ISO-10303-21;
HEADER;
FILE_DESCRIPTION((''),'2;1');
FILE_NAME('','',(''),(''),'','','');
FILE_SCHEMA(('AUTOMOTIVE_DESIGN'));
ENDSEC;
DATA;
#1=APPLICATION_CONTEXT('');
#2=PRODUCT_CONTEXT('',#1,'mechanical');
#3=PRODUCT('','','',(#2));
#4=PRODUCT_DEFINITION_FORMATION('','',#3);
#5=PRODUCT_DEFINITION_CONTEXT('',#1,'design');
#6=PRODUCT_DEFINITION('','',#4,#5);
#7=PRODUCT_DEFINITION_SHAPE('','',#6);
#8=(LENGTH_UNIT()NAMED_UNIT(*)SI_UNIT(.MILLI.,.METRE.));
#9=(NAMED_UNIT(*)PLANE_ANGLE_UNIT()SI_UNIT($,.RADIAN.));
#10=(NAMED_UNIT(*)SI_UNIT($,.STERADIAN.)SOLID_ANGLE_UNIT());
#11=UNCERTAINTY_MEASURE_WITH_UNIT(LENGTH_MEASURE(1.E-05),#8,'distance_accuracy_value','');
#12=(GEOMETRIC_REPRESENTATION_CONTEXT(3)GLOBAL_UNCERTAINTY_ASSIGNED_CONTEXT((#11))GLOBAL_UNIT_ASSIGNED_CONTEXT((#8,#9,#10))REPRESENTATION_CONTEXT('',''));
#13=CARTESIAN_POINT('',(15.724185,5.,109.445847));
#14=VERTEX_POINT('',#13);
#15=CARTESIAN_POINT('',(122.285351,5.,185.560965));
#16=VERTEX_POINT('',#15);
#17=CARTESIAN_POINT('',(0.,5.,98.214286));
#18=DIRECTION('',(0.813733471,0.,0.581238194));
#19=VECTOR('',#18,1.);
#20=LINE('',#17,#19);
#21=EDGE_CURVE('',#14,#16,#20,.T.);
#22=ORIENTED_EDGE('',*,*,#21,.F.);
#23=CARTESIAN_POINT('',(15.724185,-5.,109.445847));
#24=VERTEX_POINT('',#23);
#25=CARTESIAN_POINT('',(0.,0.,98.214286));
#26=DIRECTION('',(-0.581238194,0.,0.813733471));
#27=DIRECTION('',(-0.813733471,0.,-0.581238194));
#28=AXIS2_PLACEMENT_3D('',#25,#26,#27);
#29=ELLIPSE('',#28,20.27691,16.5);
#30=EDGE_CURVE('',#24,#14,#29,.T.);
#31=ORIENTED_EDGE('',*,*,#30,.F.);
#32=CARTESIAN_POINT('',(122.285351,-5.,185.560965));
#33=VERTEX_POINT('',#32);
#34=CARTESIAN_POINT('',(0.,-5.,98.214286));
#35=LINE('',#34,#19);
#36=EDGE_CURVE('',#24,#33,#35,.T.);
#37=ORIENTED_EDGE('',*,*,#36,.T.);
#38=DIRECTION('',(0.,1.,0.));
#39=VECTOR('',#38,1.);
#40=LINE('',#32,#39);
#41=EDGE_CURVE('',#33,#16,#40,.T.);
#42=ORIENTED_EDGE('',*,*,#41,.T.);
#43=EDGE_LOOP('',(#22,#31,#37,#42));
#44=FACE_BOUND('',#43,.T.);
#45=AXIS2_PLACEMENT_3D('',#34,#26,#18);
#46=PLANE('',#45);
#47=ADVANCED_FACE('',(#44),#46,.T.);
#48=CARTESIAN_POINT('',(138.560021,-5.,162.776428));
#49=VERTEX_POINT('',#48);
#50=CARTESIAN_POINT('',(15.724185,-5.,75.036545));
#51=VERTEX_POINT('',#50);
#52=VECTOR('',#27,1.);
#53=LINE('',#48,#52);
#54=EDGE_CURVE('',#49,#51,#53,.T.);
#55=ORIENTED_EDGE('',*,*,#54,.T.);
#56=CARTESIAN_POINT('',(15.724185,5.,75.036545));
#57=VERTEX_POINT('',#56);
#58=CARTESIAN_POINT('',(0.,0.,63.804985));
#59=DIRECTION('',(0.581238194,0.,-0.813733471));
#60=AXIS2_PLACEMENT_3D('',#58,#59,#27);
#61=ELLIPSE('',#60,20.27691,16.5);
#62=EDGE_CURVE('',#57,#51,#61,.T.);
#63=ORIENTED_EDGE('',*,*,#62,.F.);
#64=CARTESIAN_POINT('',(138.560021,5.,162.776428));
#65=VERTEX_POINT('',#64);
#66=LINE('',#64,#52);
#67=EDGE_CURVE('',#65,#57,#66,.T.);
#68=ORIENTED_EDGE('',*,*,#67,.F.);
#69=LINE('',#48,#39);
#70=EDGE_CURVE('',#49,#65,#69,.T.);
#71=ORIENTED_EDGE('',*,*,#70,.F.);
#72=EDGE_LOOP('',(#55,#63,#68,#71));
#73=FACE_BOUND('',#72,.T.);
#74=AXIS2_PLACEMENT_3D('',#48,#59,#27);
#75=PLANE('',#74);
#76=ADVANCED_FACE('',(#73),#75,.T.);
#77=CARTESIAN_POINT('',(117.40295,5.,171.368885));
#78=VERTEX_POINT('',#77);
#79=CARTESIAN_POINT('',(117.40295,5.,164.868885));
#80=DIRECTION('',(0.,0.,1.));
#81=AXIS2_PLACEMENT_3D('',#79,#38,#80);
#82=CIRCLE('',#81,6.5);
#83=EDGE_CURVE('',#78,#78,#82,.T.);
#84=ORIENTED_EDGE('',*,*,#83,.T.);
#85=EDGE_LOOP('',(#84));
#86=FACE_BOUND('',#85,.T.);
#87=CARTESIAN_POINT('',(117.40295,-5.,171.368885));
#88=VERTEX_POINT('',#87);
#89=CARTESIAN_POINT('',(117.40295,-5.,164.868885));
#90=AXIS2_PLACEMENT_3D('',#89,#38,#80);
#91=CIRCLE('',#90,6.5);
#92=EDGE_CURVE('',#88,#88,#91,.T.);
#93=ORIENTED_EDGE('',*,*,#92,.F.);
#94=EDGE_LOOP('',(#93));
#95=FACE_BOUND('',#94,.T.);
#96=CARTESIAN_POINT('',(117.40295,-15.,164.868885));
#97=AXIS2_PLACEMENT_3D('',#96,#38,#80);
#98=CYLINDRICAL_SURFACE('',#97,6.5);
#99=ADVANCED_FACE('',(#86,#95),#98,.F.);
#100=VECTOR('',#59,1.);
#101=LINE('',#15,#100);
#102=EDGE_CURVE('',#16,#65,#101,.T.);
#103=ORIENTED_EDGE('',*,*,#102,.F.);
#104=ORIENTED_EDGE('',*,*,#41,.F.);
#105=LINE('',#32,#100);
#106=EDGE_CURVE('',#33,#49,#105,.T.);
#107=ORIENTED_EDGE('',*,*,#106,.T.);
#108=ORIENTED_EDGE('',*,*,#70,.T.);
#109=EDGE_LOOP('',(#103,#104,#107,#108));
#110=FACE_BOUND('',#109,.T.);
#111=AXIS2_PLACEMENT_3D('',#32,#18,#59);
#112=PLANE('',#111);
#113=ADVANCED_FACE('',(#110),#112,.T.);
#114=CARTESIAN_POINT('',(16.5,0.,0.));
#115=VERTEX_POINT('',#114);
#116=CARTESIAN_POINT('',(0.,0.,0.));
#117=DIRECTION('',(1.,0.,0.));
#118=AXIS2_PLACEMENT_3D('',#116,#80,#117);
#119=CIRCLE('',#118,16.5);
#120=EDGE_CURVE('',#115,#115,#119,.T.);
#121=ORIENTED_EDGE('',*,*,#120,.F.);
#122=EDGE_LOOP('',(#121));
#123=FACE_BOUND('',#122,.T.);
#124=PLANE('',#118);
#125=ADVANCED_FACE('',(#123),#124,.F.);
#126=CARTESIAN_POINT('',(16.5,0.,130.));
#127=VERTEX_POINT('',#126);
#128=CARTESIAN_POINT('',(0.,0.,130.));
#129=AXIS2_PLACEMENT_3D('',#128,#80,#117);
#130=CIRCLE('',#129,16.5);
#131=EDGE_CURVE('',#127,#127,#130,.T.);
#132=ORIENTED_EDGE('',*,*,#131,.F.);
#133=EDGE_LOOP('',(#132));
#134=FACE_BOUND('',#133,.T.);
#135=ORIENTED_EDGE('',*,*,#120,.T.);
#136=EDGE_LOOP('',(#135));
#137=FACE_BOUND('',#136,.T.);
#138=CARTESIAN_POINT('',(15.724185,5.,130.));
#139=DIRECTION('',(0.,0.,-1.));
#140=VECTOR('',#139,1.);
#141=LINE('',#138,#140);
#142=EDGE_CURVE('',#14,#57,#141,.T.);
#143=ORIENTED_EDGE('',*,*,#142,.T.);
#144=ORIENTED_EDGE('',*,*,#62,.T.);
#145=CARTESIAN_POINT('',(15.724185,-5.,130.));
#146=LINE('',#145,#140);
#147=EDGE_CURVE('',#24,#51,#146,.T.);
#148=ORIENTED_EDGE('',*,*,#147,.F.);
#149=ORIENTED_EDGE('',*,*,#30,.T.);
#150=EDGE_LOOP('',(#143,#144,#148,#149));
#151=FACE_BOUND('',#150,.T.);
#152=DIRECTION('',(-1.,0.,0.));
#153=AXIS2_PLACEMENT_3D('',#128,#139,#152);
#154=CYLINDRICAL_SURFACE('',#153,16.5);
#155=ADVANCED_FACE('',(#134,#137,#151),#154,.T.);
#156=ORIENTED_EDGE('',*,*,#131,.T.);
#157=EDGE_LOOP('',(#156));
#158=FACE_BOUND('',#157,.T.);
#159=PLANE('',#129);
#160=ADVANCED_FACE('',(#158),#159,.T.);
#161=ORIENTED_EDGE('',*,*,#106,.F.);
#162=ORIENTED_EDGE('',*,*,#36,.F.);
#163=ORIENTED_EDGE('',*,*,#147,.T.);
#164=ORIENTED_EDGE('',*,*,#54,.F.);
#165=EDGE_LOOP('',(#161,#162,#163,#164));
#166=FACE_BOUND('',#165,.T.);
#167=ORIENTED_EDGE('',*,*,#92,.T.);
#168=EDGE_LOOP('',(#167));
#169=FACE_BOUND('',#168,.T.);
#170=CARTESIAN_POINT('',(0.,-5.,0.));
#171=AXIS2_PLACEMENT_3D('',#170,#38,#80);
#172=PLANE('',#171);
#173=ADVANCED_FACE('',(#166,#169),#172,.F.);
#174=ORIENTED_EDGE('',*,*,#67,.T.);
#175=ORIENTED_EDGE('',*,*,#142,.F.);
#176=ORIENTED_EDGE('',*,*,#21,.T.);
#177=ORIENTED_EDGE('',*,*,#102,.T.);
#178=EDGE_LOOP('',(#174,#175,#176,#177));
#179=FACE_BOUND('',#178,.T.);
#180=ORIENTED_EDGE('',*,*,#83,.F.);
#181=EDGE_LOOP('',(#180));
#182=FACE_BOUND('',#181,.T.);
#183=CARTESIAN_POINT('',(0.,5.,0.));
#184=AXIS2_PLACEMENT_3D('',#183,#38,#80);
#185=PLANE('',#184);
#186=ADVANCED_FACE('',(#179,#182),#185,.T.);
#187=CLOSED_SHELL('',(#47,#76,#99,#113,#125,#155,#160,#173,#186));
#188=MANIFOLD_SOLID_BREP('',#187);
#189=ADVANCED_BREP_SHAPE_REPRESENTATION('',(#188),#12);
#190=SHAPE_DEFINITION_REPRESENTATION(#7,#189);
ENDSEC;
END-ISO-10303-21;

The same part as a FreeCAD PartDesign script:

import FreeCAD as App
import Part
import Sketcher
Q = App.Units.Quantity

doc = App.newDocument("Part")
body = doc.addObject("PartDesign::Body", "Body")

# Sketch on XY plane
sketch1 = doc.addObject("Sketcher::SketchObject", "Sketch")
body.addObject(sketch1)
sketch1.AttachmentSupport = (doc.XY_Plane, [""])
sketch1.MapMode = "FlatFace"
sketch1.addGeometry(Part.Circle(App.Vector(0, 0, 0), App.Vector(0, 0, 1), 16), False)
sketch1.addConstraint([
    Sketcher.Constraint("Coincident", 0, 3, -1, 1),
    Sketcher.Constraint("Diameter", 0, Q("33 mm")),
])
pad1 = doc.addObject("PartDesign::Pad", "Pad")
body.addObject(pad1)
pad1.Profile = sketch1
pad1.Length = 130

# Sketch on XZ plane
sketch2 = doc.addObject("Sketcher::SketchObject", "Sketch001")
body.addObject(sketch2)
sketch2.AttachmentSupport = (doc.XZ_Plane, [""])
sketch2.MapMode = "FlatFace"
sketch2.addGeometry([
    Part.LineSegment(App.Vector(0, 98, 0), App.Vector(122, 186, 0)),
    Part.LineSegment(App.Vector(122, 186, 0), App.Vector(139, 163, 0)),
    Part.LineSegment(App.Vector(139, 163, 0), App.Vector(0, 64, 0)),
    Part.LineSegment(App.Vector(0, 64, 0), App.Vector(0, 98, 0)),
], False)
sketch2.addConstraint([
    Sketcher.Constraint("Coincident", 0, 2, 1, 1),
    Sketcher.Constraint("Coincident", 1, 2, 2, 1),
    Sketcher.Constraint("Coincident", 2, 2, 3, 1),
    Sketcher.Constraint("Coincident", 3, 2, 0, 1),
    Sketcher.Constraint("Vertical", 3),
    Sketcher.Constraint("PointOnObject", 2, 2, -2),
    Sketcher.Constraint("Perpendicular", 0, 1),
    Sketcher.Constraint("Perpendicular", 1, 2),
    Sketcher.Constraint("Distance", 1, Q("28 mm")),
    Sketcher.Constraint("DistanceY", 3, 1, 3, 2, Q("34.409301 mm")),
    Sketcher.Constraint("Distance", 0, Q("150.27691 mm")),
    Sketcher.Constraint("DistanceY", -1, 1, 0, 2, Q("185.560965 mm")),
])
pad2 = doc.addObject("PartDesign::Pad", "Pad001")
body.addObject(pad2)
pad2.Profile = sketch2
pad2.Type = "TwoLengths"
pad2.Length = 5
pad2.Length2 = 5
pad2.Reversed = True

# Sketch on XZ plane
sketch3 = doc.addObject("Sketcher::SketchObject", "Sketch002")
body.addObject(sketch3)
sketch3.AttachmentSupport = (doc.XZ_Plane, [""])
sketch3.MapMode = "FlatFace"
sketch3.AttachmentOffset = App.Placement(App.Vector(0, 0, -5), App.Rotation())
sketch3.addGeometry(Part.Circle(App.Vector(117, 165, 0), App.Vector(0, 0, 1), 6), False)
sketch3.addConstraint([
    Sketcher.Constraint("Diameter", 0, Q("13 mm")),
    Sketcher.Constraint("DistanceX", -1, 1, 0, 3, Q("117.40295 mm")),
    Sketcher.Constraint("DistanceY", -1, 1, 0, 3, Q("164.868885 mm")),
])
pocket1 = doc.addObject("PartDesign::Pocket", "Pocket")
body.addObject(pocket1)
pocket1.Profile = sketch3
pocket1.Length = 20
pocket1.Reversed = True

doc.recompute()
